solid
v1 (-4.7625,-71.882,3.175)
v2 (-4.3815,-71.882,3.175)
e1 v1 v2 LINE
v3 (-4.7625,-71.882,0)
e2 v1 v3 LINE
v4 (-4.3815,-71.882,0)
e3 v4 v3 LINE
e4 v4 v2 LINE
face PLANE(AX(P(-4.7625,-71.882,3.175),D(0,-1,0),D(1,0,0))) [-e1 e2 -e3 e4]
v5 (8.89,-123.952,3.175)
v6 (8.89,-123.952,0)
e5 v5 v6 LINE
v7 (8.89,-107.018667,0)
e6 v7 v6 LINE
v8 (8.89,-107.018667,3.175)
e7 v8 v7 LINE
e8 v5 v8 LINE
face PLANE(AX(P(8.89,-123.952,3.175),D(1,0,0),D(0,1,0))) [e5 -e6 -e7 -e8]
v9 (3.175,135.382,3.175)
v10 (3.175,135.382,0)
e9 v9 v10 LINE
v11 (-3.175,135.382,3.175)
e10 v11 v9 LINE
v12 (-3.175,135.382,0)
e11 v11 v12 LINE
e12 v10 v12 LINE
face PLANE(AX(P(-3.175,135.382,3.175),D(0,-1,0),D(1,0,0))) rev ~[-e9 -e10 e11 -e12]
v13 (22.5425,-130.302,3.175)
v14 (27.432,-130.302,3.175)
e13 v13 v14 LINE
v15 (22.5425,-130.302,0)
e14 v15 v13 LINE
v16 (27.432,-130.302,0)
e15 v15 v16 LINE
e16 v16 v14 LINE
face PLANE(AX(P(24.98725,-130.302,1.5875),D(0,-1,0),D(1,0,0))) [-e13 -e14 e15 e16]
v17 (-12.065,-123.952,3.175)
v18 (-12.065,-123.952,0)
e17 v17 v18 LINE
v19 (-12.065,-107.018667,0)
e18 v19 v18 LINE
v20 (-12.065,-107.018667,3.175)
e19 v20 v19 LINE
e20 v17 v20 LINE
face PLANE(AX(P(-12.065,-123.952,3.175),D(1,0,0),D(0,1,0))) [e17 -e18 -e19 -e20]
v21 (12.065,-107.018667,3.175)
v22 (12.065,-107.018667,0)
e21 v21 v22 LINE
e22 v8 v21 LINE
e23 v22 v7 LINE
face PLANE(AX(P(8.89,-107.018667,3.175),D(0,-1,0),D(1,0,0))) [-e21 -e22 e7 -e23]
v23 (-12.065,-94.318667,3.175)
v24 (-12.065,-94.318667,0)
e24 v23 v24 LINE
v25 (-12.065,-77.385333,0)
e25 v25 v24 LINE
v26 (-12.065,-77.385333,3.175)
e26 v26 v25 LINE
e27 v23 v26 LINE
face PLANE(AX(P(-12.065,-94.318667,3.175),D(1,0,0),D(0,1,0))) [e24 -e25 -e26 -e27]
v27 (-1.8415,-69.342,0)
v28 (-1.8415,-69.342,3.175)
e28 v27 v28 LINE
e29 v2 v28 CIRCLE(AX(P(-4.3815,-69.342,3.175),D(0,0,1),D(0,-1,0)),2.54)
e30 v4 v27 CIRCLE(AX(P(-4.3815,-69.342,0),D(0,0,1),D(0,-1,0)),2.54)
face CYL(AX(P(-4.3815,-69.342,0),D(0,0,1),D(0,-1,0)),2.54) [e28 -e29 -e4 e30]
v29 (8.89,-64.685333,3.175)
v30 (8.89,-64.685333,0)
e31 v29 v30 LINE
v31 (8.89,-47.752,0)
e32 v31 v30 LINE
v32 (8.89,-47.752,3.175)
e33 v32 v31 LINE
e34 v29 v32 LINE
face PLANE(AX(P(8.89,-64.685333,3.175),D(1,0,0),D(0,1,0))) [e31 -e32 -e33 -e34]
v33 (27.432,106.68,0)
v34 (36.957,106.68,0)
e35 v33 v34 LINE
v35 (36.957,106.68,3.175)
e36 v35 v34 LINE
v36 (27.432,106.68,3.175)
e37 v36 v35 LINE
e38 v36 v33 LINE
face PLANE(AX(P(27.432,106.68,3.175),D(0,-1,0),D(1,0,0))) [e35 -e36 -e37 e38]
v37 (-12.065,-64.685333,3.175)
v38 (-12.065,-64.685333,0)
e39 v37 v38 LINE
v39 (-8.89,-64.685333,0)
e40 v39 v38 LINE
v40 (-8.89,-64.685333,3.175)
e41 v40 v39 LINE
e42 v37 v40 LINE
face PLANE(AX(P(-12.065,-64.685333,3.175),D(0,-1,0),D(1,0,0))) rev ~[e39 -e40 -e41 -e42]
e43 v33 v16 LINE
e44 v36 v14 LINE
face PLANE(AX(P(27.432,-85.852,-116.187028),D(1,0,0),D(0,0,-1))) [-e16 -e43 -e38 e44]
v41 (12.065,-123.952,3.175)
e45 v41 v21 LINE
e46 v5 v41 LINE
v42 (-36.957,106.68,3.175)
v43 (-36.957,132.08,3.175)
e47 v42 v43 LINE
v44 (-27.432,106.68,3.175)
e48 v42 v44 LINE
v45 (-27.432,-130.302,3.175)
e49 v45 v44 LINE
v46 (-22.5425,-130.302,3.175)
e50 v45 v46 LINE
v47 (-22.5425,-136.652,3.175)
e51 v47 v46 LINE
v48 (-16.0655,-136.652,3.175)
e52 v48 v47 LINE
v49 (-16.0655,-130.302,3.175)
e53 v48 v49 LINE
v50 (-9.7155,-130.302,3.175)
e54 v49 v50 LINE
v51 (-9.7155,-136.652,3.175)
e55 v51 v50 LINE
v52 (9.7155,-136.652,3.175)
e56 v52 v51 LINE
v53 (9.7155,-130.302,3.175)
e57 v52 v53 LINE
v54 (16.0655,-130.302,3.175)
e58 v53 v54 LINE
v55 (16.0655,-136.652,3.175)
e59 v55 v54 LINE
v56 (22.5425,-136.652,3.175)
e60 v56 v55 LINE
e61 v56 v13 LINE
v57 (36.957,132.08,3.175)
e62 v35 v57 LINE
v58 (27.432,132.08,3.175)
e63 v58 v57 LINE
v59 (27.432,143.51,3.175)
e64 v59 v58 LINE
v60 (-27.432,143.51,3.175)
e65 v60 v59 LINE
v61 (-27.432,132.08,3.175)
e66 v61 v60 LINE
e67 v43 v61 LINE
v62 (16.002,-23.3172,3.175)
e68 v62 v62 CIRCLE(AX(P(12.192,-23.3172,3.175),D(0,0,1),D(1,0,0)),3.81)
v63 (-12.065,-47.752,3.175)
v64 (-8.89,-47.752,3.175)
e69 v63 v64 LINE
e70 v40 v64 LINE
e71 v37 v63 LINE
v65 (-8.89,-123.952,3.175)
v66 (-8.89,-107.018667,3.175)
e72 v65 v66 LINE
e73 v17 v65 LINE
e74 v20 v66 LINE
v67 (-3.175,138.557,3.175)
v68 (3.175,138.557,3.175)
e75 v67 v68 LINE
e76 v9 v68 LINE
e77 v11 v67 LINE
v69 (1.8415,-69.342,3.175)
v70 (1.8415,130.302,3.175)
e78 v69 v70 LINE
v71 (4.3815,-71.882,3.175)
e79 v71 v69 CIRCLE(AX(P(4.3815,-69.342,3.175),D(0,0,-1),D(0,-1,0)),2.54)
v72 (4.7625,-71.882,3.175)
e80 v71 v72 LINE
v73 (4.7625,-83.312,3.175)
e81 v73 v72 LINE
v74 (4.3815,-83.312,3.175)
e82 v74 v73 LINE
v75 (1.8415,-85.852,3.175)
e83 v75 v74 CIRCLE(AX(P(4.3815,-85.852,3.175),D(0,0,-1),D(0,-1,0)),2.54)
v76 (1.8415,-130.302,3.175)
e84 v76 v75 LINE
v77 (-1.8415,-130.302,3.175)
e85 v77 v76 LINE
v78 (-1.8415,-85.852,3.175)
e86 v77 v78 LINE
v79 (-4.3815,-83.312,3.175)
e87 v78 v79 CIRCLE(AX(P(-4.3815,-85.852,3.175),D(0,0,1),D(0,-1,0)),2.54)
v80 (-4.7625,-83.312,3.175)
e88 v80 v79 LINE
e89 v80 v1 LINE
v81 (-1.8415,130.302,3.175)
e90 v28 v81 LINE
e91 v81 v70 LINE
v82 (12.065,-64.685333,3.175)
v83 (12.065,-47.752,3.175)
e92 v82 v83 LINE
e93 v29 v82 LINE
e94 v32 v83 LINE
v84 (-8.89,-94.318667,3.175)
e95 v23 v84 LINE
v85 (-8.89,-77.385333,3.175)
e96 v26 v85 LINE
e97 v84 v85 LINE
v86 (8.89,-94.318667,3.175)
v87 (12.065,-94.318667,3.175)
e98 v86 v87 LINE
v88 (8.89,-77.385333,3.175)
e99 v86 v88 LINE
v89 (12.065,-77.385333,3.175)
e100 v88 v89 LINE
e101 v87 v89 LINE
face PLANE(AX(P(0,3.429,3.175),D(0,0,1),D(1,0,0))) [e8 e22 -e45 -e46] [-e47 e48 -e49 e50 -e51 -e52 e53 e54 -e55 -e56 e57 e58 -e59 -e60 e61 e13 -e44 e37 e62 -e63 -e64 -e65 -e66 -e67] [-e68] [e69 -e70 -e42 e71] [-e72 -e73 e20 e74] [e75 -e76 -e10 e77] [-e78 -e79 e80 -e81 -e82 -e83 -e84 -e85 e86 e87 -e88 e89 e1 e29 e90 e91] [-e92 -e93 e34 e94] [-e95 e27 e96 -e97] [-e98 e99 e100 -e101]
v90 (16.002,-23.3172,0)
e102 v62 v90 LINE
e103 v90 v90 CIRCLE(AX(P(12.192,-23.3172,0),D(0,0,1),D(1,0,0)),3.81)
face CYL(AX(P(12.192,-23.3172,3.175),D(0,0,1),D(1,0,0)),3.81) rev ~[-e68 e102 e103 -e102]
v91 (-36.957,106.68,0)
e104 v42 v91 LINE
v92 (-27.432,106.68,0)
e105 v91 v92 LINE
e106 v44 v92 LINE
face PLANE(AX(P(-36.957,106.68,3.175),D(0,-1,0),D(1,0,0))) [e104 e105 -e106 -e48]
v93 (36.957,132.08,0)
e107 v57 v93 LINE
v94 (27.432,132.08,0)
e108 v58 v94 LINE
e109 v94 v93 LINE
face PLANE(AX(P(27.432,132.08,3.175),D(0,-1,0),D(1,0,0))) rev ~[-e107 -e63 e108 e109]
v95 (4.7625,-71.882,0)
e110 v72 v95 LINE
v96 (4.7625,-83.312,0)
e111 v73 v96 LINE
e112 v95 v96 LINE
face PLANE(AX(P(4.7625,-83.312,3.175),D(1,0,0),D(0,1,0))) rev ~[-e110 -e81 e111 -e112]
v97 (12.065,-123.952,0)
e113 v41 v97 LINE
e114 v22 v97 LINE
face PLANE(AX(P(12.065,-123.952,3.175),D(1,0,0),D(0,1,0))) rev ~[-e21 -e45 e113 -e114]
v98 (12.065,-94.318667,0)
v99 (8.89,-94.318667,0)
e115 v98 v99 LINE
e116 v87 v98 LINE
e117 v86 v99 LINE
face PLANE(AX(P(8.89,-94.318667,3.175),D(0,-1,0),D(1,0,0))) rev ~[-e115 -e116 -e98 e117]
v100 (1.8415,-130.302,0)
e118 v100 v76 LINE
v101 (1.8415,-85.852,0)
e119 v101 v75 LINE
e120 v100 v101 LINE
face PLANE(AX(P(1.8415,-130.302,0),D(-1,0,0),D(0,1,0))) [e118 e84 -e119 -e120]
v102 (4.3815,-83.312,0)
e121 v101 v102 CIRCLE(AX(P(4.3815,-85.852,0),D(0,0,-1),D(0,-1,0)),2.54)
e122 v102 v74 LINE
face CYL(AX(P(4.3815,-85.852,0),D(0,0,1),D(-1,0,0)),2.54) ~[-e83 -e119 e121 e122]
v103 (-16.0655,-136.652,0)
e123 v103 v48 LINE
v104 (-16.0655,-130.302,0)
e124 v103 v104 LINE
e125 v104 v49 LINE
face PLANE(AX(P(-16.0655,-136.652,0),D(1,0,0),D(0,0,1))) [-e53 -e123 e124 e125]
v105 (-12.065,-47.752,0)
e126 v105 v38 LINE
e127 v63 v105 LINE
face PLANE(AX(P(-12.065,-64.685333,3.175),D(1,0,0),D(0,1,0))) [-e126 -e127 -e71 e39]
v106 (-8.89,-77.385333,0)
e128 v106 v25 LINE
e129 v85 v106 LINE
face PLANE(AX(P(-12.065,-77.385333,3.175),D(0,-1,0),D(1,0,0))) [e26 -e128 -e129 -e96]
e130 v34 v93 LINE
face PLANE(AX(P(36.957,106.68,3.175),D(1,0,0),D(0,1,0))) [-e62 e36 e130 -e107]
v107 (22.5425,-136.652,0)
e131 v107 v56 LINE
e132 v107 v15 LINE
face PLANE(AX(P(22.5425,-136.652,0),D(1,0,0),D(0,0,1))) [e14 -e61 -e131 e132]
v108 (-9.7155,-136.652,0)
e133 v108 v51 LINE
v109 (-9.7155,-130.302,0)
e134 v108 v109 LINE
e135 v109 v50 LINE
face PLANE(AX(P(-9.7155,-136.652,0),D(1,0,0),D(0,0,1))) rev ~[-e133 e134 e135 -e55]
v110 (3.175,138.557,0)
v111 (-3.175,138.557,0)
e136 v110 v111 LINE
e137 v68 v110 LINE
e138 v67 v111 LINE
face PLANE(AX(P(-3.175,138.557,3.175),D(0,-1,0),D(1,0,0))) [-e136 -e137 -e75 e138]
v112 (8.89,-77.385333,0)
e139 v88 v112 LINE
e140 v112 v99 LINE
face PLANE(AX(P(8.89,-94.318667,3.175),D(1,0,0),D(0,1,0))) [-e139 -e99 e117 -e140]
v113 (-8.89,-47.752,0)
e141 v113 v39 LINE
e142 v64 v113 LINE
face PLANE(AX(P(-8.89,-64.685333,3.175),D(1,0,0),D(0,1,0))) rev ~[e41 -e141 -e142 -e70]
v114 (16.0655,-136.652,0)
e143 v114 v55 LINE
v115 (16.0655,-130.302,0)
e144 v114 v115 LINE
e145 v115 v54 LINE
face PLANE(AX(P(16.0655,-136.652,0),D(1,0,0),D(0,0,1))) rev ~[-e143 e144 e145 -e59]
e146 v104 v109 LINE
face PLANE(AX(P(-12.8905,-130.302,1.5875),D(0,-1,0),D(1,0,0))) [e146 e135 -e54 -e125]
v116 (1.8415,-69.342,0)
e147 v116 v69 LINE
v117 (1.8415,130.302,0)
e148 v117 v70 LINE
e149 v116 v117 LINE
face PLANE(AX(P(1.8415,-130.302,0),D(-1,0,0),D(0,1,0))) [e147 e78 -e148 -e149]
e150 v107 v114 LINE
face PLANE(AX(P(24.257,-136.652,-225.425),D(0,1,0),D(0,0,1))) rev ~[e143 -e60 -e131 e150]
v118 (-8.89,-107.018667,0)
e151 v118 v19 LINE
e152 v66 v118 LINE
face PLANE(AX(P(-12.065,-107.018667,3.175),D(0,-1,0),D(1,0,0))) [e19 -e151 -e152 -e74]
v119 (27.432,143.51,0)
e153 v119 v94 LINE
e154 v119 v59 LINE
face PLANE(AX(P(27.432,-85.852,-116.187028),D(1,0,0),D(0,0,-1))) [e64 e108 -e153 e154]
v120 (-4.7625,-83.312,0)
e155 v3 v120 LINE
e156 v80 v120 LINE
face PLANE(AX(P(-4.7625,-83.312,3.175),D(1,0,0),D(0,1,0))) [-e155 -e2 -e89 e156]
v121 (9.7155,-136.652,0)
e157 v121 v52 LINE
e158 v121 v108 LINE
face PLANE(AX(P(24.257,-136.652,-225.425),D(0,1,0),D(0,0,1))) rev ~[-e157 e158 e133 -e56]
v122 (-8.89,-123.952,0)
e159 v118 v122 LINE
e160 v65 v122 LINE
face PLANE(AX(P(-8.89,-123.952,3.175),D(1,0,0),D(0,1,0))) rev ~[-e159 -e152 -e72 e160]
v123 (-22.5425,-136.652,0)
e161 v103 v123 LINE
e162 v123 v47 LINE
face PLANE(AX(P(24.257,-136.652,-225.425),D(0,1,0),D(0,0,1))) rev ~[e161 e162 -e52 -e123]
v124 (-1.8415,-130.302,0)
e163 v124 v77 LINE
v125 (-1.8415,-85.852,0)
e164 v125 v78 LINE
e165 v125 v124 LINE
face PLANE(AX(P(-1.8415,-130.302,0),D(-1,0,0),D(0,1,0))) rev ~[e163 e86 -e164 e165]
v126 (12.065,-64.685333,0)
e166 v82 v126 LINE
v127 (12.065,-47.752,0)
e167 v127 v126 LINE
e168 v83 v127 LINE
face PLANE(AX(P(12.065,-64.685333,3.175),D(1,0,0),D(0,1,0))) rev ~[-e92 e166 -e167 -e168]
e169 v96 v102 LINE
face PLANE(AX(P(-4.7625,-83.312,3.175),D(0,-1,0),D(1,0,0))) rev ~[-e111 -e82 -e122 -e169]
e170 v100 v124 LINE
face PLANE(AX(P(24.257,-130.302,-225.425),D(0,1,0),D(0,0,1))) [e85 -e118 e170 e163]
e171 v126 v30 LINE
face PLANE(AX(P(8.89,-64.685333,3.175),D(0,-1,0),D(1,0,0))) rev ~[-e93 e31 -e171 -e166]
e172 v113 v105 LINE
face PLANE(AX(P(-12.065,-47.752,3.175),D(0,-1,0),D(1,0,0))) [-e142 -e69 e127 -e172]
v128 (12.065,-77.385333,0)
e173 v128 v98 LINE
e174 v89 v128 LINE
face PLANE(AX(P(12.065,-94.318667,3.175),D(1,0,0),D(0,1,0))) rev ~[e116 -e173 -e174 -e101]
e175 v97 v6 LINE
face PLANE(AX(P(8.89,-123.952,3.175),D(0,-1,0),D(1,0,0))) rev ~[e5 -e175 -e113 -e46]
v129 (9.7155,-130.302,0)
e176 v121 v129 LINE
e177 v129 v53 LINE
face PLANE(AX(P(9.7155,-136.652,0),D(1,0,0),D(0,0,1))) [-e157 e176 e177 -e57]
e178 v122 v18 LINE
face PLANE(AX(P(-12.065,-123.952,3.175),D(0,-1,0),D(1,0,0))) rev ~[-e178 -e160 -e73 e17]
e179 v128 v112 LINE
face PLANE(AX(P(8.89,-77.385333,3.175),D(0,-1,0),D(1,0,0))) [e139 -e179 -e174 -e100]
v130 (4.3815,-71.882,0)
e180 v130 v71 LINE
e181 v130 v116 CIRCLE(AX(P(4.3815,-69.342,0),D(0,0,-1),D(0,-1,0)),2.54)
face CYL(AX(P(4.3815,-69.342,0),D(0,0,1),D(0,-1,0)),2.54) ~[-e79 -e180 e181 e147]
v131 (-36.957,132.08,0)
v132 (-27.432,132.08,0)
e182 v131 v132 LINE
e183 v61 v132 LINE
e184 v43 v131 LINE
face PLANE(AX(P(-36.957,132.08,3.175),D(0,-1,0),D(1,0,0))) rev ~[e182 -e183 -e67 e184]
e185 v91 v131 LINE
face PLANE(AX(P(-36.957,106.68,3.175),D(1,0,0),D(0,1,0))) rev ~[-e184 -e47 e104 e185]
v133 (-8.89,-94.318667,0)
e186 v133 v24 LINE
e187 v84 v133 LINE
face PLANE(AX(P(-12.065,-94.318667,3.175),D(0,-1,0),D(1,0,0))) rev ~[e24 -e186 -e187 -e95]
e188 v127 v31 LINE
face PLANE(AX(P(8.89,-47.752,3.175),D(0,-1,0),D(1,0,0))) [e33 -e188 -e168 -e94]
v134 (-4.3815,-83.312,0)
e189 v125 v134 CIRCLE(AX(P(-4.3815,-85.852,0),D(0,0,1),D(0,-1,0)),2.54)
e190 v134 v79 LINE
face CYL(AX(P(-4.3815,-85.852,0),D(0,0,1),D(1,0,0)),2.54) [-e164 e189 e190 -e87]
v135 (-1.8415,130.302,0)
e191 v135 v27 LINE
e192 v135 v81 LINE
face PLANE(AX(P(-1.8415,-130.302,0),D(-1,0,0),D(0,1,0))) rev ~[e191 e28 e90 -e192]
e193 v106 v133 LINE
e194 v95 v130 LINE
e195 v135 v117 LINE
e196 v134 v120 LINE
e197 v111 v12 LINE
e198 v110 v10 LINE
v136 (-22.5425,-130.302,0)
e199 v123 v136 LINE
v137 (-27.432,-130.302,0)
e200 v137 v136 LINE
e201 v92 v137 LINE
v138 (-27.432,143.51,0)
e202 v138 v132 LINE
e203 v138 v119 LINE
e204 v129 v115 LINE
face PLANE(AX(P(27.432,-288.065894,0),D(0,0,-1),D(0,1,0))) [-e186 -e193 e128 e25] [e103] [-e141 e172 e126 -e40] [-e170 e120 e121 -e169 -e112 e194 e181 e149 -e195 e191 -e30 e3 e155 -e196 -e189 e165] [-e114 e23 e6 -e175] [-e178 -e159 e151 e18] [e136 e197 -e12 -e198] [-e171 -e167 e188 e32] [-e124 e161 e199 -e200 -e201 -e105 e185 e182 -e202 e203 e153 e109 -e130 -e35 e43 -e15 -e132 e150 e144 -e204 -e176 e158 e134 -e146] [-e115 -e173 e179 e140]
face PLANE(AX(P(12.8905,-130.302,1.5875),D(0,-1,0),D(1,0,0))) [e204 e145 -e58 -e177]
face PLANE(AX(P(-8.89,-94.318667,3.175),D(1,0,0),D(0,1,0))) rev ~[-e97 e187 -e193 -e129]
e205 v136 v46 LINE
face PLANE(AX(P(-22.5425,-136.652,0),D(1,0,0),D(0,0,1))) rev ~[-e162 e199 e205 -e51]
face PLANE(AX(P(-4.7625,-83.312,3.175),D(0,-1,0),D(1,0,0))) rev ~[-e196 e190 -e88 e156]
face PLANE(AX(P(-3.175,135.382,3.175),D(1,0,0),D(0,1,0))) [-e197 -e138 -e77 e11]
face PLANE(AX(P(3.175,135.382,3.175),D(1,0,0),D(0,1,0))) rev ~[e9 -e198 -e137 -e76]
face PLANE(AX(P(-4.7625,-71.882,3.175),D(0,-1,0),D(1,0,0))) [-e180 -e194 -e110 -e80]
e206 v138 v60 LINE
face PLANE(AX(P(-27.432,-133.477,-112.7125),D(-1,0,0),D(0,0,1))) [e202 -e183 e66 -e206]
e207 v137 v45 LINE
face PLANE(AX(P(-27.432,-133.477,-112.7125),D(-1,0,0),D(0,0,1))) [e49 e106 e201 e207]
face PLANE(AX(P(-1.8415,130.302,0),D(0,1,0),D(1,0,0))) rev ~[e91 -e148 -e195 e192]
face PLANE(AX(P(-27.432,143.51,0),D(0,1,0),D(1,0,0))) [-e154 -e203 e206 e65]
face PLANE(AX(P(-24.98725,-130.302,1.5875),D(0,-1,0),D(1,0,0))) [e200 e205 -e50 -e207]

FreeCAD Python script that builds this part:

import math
import FreeCAD as App
import Part
import Sketcher
Q = App.Units.Quantity


def edges_at(feature, points):
    """Names of the edges that pass closest to the given points."""
    edges = feature.Shape.Edges
    near = lambda p: min(range(len(edges)), key=lambda i: edges[i].distToShape(Part.Vertex(*p))[0])
    return sorted({f"Edge{near(p) + 1}" for p in points})


def add_polygon(sketch, points):
    """Adds a closed chain of lines whose ends are joined by coincident constraints."""
    first, n = sketch.GeometryCount, len(points)
    for a, b in zip(points, points[1:] + points[:1]):
        sketch.addGeometry(Part.LineSegment(App.Vector(*a, 0), App.Vector(*b, 0)), False)
    for i in range(n):
        sketch.addConstraint(Sketcher.Constraint("Coincident", first + i, 2, first + (i + 1) % n, 1))

doc = App.newDocument("Part")
params = doc.addObject("Spreadsheet::Sheet", "Params")
for row, (alias, value) in enumerate([
    ("sketch1_width", "2.16 in"),
    ("sketch1_height", "11.03 in"),
    ("sketch1_height2", "10.26 in"),
    ("sketch1_width2", "0.145 in"),
    ("pad1_length", "0.125 in"),
    ("sketch2_width", "4 in"),
    ("sketch2_height", "9 in"),
    ("sketch2_width2", "0.5 in"),
    ("sketch2_width3", "0.2 in"),
    ("sketch2_height2", "0.125 in"),
    ("pad2_length", "0.125 in"),
    ("sketch3_width", "0.25 in"),
    ("sketch3_height", "8.875 in"),
    ("pad3_length", "2.035 in"),
    ("sketch5_height", "0.5 in"),
    ("sketch5_width", "0.25 in"),
    ("sketch5_height2", "0.125 in"),
    ("pocket2_length", "0.25 in"),
    ("sketch6_height", "1 in"),
    ("sketch6_width", "0.375 in"),
    ("pad4_length", "0.125 in"),
    ("sketch7_width", "0.125 in"),
    ("sketch8_width", "0.25 in"),
    ("sketch8_height", "0.125 in"),
    ("sketch9_height", "0.45 in"),
    ("sketch9_width", "0.375 in"),
    ("sketch10_diameter", "0.3 in"),
    ("fillet_radius", "0.1 in"),
], start=1):
    params.set(f"A{row}", alias)
    params.set(f"B{row}", "=" + value)
    params.setAlias(f"B{row}", alias)

body = doc.addObject("PartDesign::Body", "Body")

# Sketch on XY plane
sketch1 = body.newObject("Sketcher::SketchObject", "Sketch")
sketch1.AttachmentSupport = (doc.getObject("XY_Plane"), [""])
sketch1.MapMode = "FlatFace"
add_polygon(sketch1, [(-27.432, 143.51), (-27.432, -136.652), (27.432, -136.652), (27.432, 143.51)])  # lines 0-3
add_polygon(sketch1, [(1.8415, -130.302), (-1.8415, -130.302), (-1.8415, 130.302), (1.8415, 130.302)])  # lines 4-7
sketch1.addConstraint(Sketcher.Constraint("Vertical", 0))
sketch1.addConstraint(Sketcher.Constraint("Horizontal", 1))
sketch1.addConstraint(Sketcher.Constraint("Vertical", 2))
sketch1.addConstraint(Sketcher.Constraint("Horizontal", 3))
sketch1.addConstraint(Sketcher.Constraint("Horizontal", 4))
sketch1.addConstraint(Sketcher.Constraint("Vertical", 5))
sketch1.addConstraint(Sketcher.Constraint("Horizontal", 6))
sketch1.addConstraint(Sketcher.Constraint("Vertical", 7))
sketch1.addConstraint(Sketcher.Constraint("Symmetric", 4, 2, 6, 2, -1, 1))
sketch1.addConstraint(Sketcher.Constraint("DistanceX", 1, 1, 1, 2, Q("2.16 in")))
sketch1.addConstraint(Sketcher.Constraint("DistanceY", 0, 2, 0, 1, Q("11.03 in")))
sketch1.addConstraint(Sketcher.Constraint("DistanceY", 5, 1, 5, 2, Q("10.26 in")))
sketch1.addConstraint(Sketcher.Constraint("DistanceX", 4, 2, 4, 1, Q("0.145 in")))
sketch1.addConstraint(Sketcher.Constraint("DistanceX", 0, 2, -1, 1, Q("1.08 in")))
sketch1.addConstraint(Sketcher.Constraint("DistanceY", 0, 2, -1, 1, Q("5.38 in")))
sketch1.setExpression("Constraints[17]", "Params.sketch1_width")
sketch1.setExpression("Constraints[18]", "Params.sketch1_height")
sketch1.setExpression("Constraints[19]", "Params.sketch1_height2")
sketch1.setExpression("Constraints[20]", "Params.sketch1_width2")
pad1 = body.newObject("PartDesign::Pad", "Pad")
pad1.Profile = sketch1
pad1.setExpression("Length", "Params.pad1_length")

# Sketch on YZ plane
sketch2 = body.newObject("Sketcher::SketchObject", "Sketch001")
sketch2.AttachmentSupport = (doc.getObject("YZ_Plane"), [""])
sketch2.MapMode = "FlatFace"
sketch2.AttachmentOffset = App.Placement(App.Vector(0, 0, 1.08 * 25.4), App.Rotation())
add_polygon(sketch2, [(-47.752, -225.425), (-35.052, -225.425), (-35.052, 3.175), (-136.652, 3.175), (-136.652, -225.425), (-123.952, -225.425), (-123.952, -228.6), (-107.018667, -228.6), (-107.018667, -225.425), (-94.318667, -225.425), (-94.318667, -228.6), (-77.385333, -228.6), (-77.385333, -225.425), (-64.685333, -225.425), (-64.685333, -228.6), (-47.752, -228.6)])  # lines 0-15
sketch2.addGeometry(Part.LineSegment(App.Vector(-98.812, -11.4, 0), App.Vector(-103.892, -11.4, 0)), False)  # 16
sketch2.addGeometry(Part.ArcOfCircle(Part.Circle(App.Vector(-103.892, -9.9, 0), App.Vector(0, 0, 1), 1.5), math.radians(90), math.radians(270)), False)  # 17
sketch2.addGeometry(Part.LineSegment(App.Vector(-103.892, -8.4, 0), App.Vector(-98.812, -8.4, 0)), False)  # 18
sketch2.addGeometry(Part.ArcOfCircle(Part.Circle(App.Vector(-98.812, -9.9, 0), App.Vector(0, 0, 1), 1.5), math.radians(-90), math.radians(90)), False)  # 19
sketch2.addGeometry(Part.ArcOfCircle(Part.Circle(App.Vector(-98.812, -40.9, 0), App.Vector(0, 0, 1), 1.5), math.radians(-90), math.radians(90)), False)  # 20
sketch2.addGeometry(Part.LineSegment(App.Vector(-98.812, -42.4, 0), App.Vector(-103.892, -42.4, 0)), False)  # 21
sketch2.addGeometry(Part.ArcOfCircle(Part.Circle(App.Vector(-103.892, -40.9, 0), App.Vector(0, 0, 1), 1.5), math.radians(90), math.radians(270)), False)  # 22
sketch2.addGeometry(Part.LineSegment(App.Vector(-103.892, -39.4, 0), App.Vector(-98.812, -39.4, 0)), False)  # 23
sketch2.addGeometry(Part.LineSegment(App.Vector(-83.312, -36.4, 0), App.Vector(-88.392, -36.4, 0)), False)  # 24
sketch2.addGeometry(Part.ArcOfCircle(Part.Circle(App.Vector(-88.392, -25.4, 0), App.Vector(0, 0, 1), 11), math.radians(90), math.radians(270)), False)  # 25
sketch2.addGeometry(Part.LineSegment(App.Vector(-88.392, -14.4, 0), App.Vector(-83.312, -14.4, 0)), False)  # 26
sketch2.addGeometry(Part.ArcOfCircle(Part.Circle(App.Vector(-83.312, -25.4, 0), App.Vector(0, 0, 1), 11), math.radians(-90), math.radians(90)), False)  # 27
sketch2.addGeometry(Part.LineSegment(App.Vector(-67.812, -11.4, 0), App.Vector(-72.892, -11.4, 0)), False)  # 28
sketch2.addGeometry(Part.ArcOfCircle(Part.Circle(App.Vector(-72.892, -9.9, 0), App.Vector(0, 0, 1), 1.5), math.radians(90), math.radians(270)), False)  # 29
sketch2.addGeometry(Part.LineSegment(App.Vector(-72.892, -8.4, 0), App.Vector(-67.812, -8.4, 0)), False)  # 30
sketch2.addGeometry(Part.ArcOfCircle(Part.Circle(App.Vector(-67.812, -9.9, 0), App.Vector(0, 0, 1), 1.5), math.radians(-90), math.radians(90)), False)  # 31
sketch2.addGeometry(Part.LineSegment(App.Vector(-67.812, -42.4, 0), App.Vector(-72.892, -42.4, 0)), False)  # 32
sketch2.addGeometry(Part.ArcOfCircle(Part.Circle(App.Vector(-72.892, -40.9, 0), App.Vector(0, 0, 1), 1.5), math.radians(90), math.radians(270)), False)  # 33
sketch2.addGeometry(Part.LineSegment(App.Vector(-72.892, -39.4, 0), App.Vector(-67.812, -39.4, 0)), False)  # 34
sketch2.addGeometry(Part.ArcOfCircle(Part.Circle(App.Vector(-67.812, -40.9, 0), App.Vector(0, 0, 1), 1.5), math.radians(-90), math.radians(90)), False)  # 35
sketch2.addConstraint(Sketcher.Constraint("Tangent", 16, 2, 17, 2))
sketch2.addConstraint(Sketcher.Constraint("Tangent", 17, 1, 18, 1))
sketch2.addConstraint(Sketcher.Constraint("Tangent", 18, 2, 19, 2))
sketch2.addConstraint(Sketcher.Constraint("Tangent", 19, 1, 16, 1))
sketch2.addConstraint(Sketcher.Constraint("Tangent", 20, 1, 21, 1))
sketch2.addConstraint(Sketcher.Constraint("Tangent", 21, 2, 22, 2))
sketch2.addConstraint(Sketcher.Constraint("Tangent", 22, 1, 23, 1))
sketch2.addConstraint(Sketcher.Constraint("Tangent", 23, 2, 20, 2))
sketch2.addConstraint(Sketcher.Constraint("Tangent", 24, 2, 25, 2))
sketch2.addConstraint(Sketcher.Constraint("Tangent", 25, 1, 26, 1))
sketch2.addConstraint(Sketcher.Constraint("Tangent", 26, 2, 27, 2))
sketch2.addConstraint(Sketcher.Constraint("Tangent", 27, 1, 24, 1))
sketch2.addConstraint(Sketcher.Constraint("Tangent", 28, 2, 29, 2))
sketch2.addConstraint(Sketcher.Constraint("Tangent", 29, 1, 30, 1))
sketch2.addConstraint(Sketcher.Constraint("Tangent", 30, 2, 31, 2))
sketch2.addConstraint(Sketcher.Constraint("Tangent", 31, 1, 28, 1))
sketch2.addConstraint(Sketcher.Constraint("Tangent", 32, 2, 33, 2))
sketch2.addConstraint(Sketcher.Constraint("Tangent", 33, 1, 34, 1))
sketch2.addConstraint(Sketcher.Constraint("Tangent", 34, 2, 35, 2))
sketch2.addConstraint(Sketcher.Constraint("Tangent", 35, 1, 32, 1))
sketch2.addConstraint(Sketcher.Constraint("Horizontal", 0))
sketch2.addConstraint(Sketcher.Constraint("Vertical", 1))
sketch2.addConstraint(Sketcher.Constraint("Horizontal", 2))
sketch2.addConstraint(Sketcher.Constraint("Vertical", 3))
sketch2.addConstraint(Sketcher.Constraint("Horizontal", 4))
sketch2.addConstraint(Sketcher.Constraint("Vertical", 5))
sketch2.addConstraint(Sketcher.Constraint("Horizontal", 6))
sketch2.addConstraint(Sketcher.Constraint("Vertical", 7))
sketch2.addConstraint(Sketcher.Constraint("Horizontal", 8))
sketch2.addConstraint(Sketcher.Constraint("Vertical", 9))
sketch2.addConstraint(Sketcher.Constraint("Horizontal", 10))
sketch2.addConstraint(Sketcher.Constraint("Vertical", 11))
sketch2.addConstraint(Sketcher.Constraint("Horizontal", 12))
sketch2.addConstraint(Sketcher.Constraint("Vertical", 13))
sketch2.addConstraint(Sketcher.Constraint("Horizontal", 14))
sketch2.addConstraint(Sketcher.Constraint("Vertical", 15))
sketch2.addConstraint(Sketcher.Constraint("Horizontal", 16))
sketch2.addConstraint(Sketcher.Constraint("Horizontal", 18))
sketch2.addConstraint(Sketcher.Constraint("Horizontal", 21))
sketch2.addConstraint(Sketcher.Constraint("Horizontal", 23))
sketch2.addConstraint(Sketcher.Constraint("Horizontal", 24))
sketch2.addConstraint(Sketcher.Constraint("Horizontal", 26))
sketch2.addConstraint(Sketcher.Constraint("Horizontal", 28))
sketch2.addConstraint(Sketcher.Constraint("Horizontal", 30))
sketch2.addConstraint(Sketcher.Constraint("Horizontal", 32))
sketch2.addConstraint(Sketcher.Constraint("Horizontal", 34))
sketch2.addConstraint(Sketcher.Constraint("Equal", 19, 20))
sketch2.addConstraint(Sketcher.Constraint("Equal", 22, 29))
sketch2.addConstraint(Sketcher.Constraint("Equal", 31, 33))
sketch2.addConstraint(Sketcher.Constraint("Horizontal", 19, 3, 29, 3))
sketch2.addConstraint(Sketcher.Constraint("Horizontal", 22, 3, 33, 3))
sketch2.addConstraint(Sketcher.Constraint("Horizontal", 0, 2, 3, 2))
sketch2.addConstraint(Sketcher.Constraint("Horizontal", 4, 2, 7, 2))
sketch2.addConstraint(Sketcher.Constraint("Horizontal", 6, 2, 9, 2))
sketch2.addConstraint(Sketcher.Constraint("Horizontal", 8, 2, 11, 2))
sketch2.addConstraint(Sketcher.Constraint("Horizontal", 10, 2, 13, 2))
sketch2.addConstraint(Sketcher.Constraint("Vertical", 19, 3, 20, 3))
sketch2.addConstraint(Sketcher.Constraint("Vertical", 17, 3, 22, 3))
sketch2.addConstraint(Sketcher.Constraint("Vertical", 29, 3, 33, 3))
sketch2.addConstraint(Sketcher.Constraint("Vertical", 31, 3, 35, 3))
sketch2.addConstraint(Sketcher.Constraint("Equal", 0, 4))
sketch2.addConstraint(Sketcher.Constraint("Equal", 4, 8))
sketch2.addConstraint(Sketcher.Constraint("Equal", 6, 10))
sketch2.addConstraint(Sketcher.Constraint("Equal", 8, 12))
sketch2.addConstraint(Sketcher.Constraint("Equal", 10, 14))
sketch2.addConstraint(Sketcher.Constraint("Equal", 23, 24))
sketch2.addConstraint(Sketcher.Constraint("Equal", 26, 28))
sketch2.addConstraint(Sketcher.Constraint("DistanceX", 2, 2, 2, 1, Q("4 in")))
sketch2.addConstraint(Sketcher.Constraint("DistanceY", 1, 1, 1, 2, Q("9 in")))
sketch2.addConstraint(Sketcher.Constraint("DistanceX", 0, 1, 0, 2, Q("0.5 in")))
sketch2.addConstraint(Sketcher.Constraint("DistanceX", 16, 2, 16, 1, Q("0.2 in")))
sketch2.addConstraint(Sketcher.Constraint("DistanceY", 25, 3, -1, 1, Q("1 in")))
sketch2.addConstraint(Sketcher.Constraint("DistanceY", 5, 2, -1, 1, Q("9 in")))
sketch2.addConstraint(Sketcher.Constraint("DistanceX", 27, 3, 0, 2, Q("1.9 in")))
sketch2.addConstraint(Sketcher.Constraint("DistanceY", 5, 2, 5, 1, Q("0.125 in")))
sketch2.addConstraint(Sketcher.Constraint("DistanceX", 25, 3, -1, 1, Q("3.48 in")))
sketch2.addConstraint(Sketcher.Constraint("Radius", 17, 1.5))
sketch2.addConstraint(Sketcher.Constraint("Radius", 25, 11.0))
sketch2.addConstraint(Sketcher.Constraint("DistanceX", 17, 3, -1, 1, 103.892))
sketch2.addConstraint(Sketcher.Constraint("DistanceY", 17, 3, -1, 1, 9.9))
sketch2.addConstraint(Sketcher.Constraint("DistanceY", 20, 3, -1, 1, 40.9))
sketch2.addConstraint(Sketcher.Constraint("DistanceX", 29, 3, -1, 1, 72.892))
sketch2.setExpression("Constraints[83]", "Params.sketch2_width")
sketch2.setExpression("Constraints[84]", "Params.sketch2_height")
sketch2.setExpression("Constraints[85]", "Params.sketch2_width2")
sketch2.setExpression("Constraints[86]", "Params.sketch2_width3")
sketch2.setExpression("Constraints[90]", "Params.sketch2_height2")
pad2 = body.newObject("PartDesign::Pad", "Pad001")
pad2.Profile = sketch2
pad2.setExpression("Length", "Params.pad2_length")
pad2.Reversed = True

# Sketch on YZ plane
sketch3 = body.newObject("Sketcher::SketchObject", "Sketch002")
sketch3.AttachmentSupport = (doc.getObject("YZ_Plane"), [""])
sketch3.MapMode = "FlatFace"
sketch3.AttachmentOffset = App.Placement(App.Vector(0, 0, 0.955 * 25.4), App.Rotation())
add_polygon(sketch3, [(-130.302, -225.425), (-136.652, -225.425), (-136.652, 0), (-130.302, 0)])  # lines 0-3
sketch3.addConstraint(Sketcher.Constraint("Horizontal", 0))
sketch3.addConstraint(Sketcher.Constraint("Vertical", 1))
sketch3.addConstraint(Sketcher.Constraint("Horizontal", 2))
sketch3.addConstraint(Sketcher.Constraint("Vertical", 3))
sketch3.addConstraint(Sketcher.Constraint("PointOnObject", 1, 2, -1))
sketch3.addConstraint(Sketcher.Constraint("DistanceX", 0, 2, 0, 1, Q("0.25 in")))
sketch3.addConstraint(Sketcher.Constraint("DistanceY", 1, 1, 1, 2, Q("8.875 in")))
sketch3.addConstraint(Sketcher.Constraint("DistanceX", 0, 2, -1, 1, Q("5.38 in")))
sketch3.setExpression("Constraints[9]", "Params.sketch3_width")
sketch3.setExpression("Constraints[10]", "Params.sketch3_height")
pad3 = body.newObject("PartDesign::Pad", "Pad002")
pad3.Profile = sketch3
pad3.setExpression("Length", "Params.pad3_length")
pad3.Reversed = True

# Sketch on YZ plane
sketch4 = body.newObject("Sketcher::SketchObject", "Sketch003")
sketch4.AttachmentSupport = (doc.getObject("YZ_Plane"), [""])
sketch4.MapMode = "FlatFace"
sketch4.AttachmentOffset = App.Placement(App.Vector(0, 0, 1.08 * 25.4), App.Rotation())
add_polygon(sketch4, [(-8.630244, 0), (-288.065894, 0), (-288.065894, -327.022739), (-8.630244, -327.022739)])  # lines 0-3
sketch4.addConstraint(Sketcher.Constraint("Horizontal", 0))
sketch4.addConstraint(Sketcher.Constraint("Vertical", 1))
sketch4.addConstraint(Sketcher.Constraint("Horizontal", 2))
sketch4.addConstraint(Sketcher.Constraint("Vertical", 3))
sketch4.addConstraint(Sketcher.Constraint("PointOnObject", 0, 2, -1))
sketch4.addConstraint(Sketcher.Constraint("DistanceX", 0, 2, 0, 1, 279.43565))
sketch4.addConstraint(Sketcher.Constraint("DistanceY", 1, 2, 1, 1, 327.022739))
sketch4.addConstraint(Sketcher.Constraint("DistanceX", 0, 2, -1, 1, 288.065894))
pocket1 = body.newObject("PartDesign::Pocket", "Pocket")
pocket1.Profile = sketch4
pocket1.Type = "ThroughAll"

# Sketch on XZ plane
sketch5 = body.newObject("Sketcher::SketchObject", "Sketch004")
sketch5.AttachmentSupport = (doc.getObject("XZ_Plane"), [""])
sketch5.MapMode = "FlatFace"
sketch5.AttachmentOffset = App.Placement(App.Vector(0, 0, 5.38 * 25.4), App.Rotation())
add_polygon(sketch5, [(-16.0655, 3.175), (-16.0655, 0), (-9.7155, 0), (-9.7155, 3.175)])  # lines 0-3
add_polygon(sketch5, [(22.5425, 3.175), (22.5425, 0), (27.432, 0), (27.432, 3.175)])  # lines 4-7
add_polygon(sketch5, [(-27.432, 3.175), (-27.432, 0), (-22.5425, 0), (-22.5425, 3.175)])  # lines 8-11
add_polygon(sketch5, [(9.7155, 3.175), (9.7155, 0), (16.0655, 0), (16.0655, 3.175)])  # lines 12-15
add_polygon(sketch5, [(22.5425, -131.7625), (22.5425, -144.4625), (27.432, -144.4625), (27.432, -131.7625)])  # lines 16-19
add_polygon(sketch5, [(22.5425, -50.8), (22.5425, -63.5), (27.432, -63.5), (27.432, -50.8)])  # lines 20-23
add_polygon(sketch5, [(22.5425, -158.75), (22.5425, -171.45), (27.432, -171.45), (27.432, -158.75)])  # lines 24-27
sketch5.addConstraint(Sketcher.Constraint("Vertical", 0))
sketch5.addConstraint(Sketcher.Constraint("Horizontal", 1))
sketch5.addConstraint(Sketcher.Constraint("Vertical", 2))
sketch5.addConstraint(Sketcher.Constraint("Horizontal", 3))
sketch5.addConstraint(Sketcher.Constraint("Vertical", 4))
sketch5.addConstraint(Sketcher.Constraint("Horizontal", 5))
sketch5.addConstraint(Sketcher.Constraint("Vertical", 6))
sketch5.addConstraint(Sketcher.Constraint("Horizontal", 7))
sketch5.addConstraint(Sketcher.Constraint("Vertical", 8))
sketch5.addConstraint(Sketcher.Constraint("Horizontal", 9))
sketch5.addConstraint(Sketcher.Constraint("Vertical", 10))
sketch5.addConstraint(Sketcher.Constraint("Horizontal", 11))
sketch5.addConstraint(Sketcher.Constraint("Vertical", 12))
sketch5.addConstraint(Sketcher.Constraint("Horizontal", 13))
sketch5.addConstraint(Sketcher.Constraint("Vertical", 14))
sketch5.addConstraint(Sketcher.Constraint("Horizontal", 15))
sketch5.addConstraint(Sketcher.Constraint("Vertical", 16))
sketch5.addConstraint(Sketcher.Constraint("Horizontal", 17))
sketch5.addConstraint(Sketcher.Constraint("Vertical", 18))
sketch5.addConstraint(Sketcher.Constraint("Horizontal", 19))
sketch5.addConstraint(Sketcher.Constraint("Vertical", 20))
sketch5.addConstraint(Sketcher.Constraint("Horizontal", 21))
sketch5.addConstraint(Sketcher.Constraint("Vertical", 22))
sketch5.addConstraint(Sketcher.Constraint("Horizontal", 23))
sketch5.addConstraint(Sketcher.Constraint("Vertical", 24))
sketch5.addConstraint(Sketcher.Constraint("Horizontal", 25))
sketch5.addConstraint(Sketcher.Constraint("Vertical", 26))
sketch5.addConstraint(Sketcher.Constraint("Horizontal", 27))
sketch5.addConstraint(Sketcher.Constraint("Symmetric", 5, 2, 8, 2, -1, 1))
sketch5.addConstraint(Sketcher.Constraint("Symmetric", 1, 2, 12, 2, -1, 1))
sketch5.addConstraint(Sketcher.Constraint("Symmetric", 4, 2, 9, 2, -2))
sketch5.addConstraint(Sketcher.Constraint("Symmetric", 0, 2, 13, 2, -2))
sketch5.addConstraint(Sketcher.Constraint("Horizontal", 3, 2, 6, 2))
sketch5.addConstraint(Sketcher.Constraint("Horizontal", 7, 2, 10, 2))
sketch5.addConstraint(Sketcher.Constraint("Horizontal", 11, 2, 14, 2))
sketch5.addConstraint(Sketcher.Constraint("Vertical", 7, 2, 16, 2))
sketch5.addConstraint(Sketcher.Constraint("Vertical", 6, 2, 17, 2))
sketch5.addConstraint(Sketcher.Constraint("Vertical", 19, 2, 20, 2))
sketch5.addConstraint(Sketcher.Constraint("Vertical", 18, 2, 21, 2))
sketch5.addConstraint(Sketcher.Constraint("Vertical", 23, 2, 24, 2))
sketch5.addConstraint(Sketcher.Constraint("Vertical", 22, 2, 25, 2))
sketch5.addConstraint(Sketcher.Constraint("Equal", 18, 20))
sketch5.addConstraint(Sketcher.Constraint("Equal", 22, 24))
sketch5.addConstraint(Sketcher.Constraint("DistanceY", 16, 2, 16, 1, Q("0.5 in")))
sketch5.addConstraint(Sketcher.Constraint("DistanceY", 22, 2, -1, 1, Q("2 in")))
sketch5.addConstraint(Sketcher.Constraint("DistanceX", 1, 1, 1, 2, Q("0.25 in")))
sketch5.addConstraint(Sketcher.Constraint("DistanceY", 0, 2, 0, 1, Q("0.125 in")))
sketch5.addConstraint(Sketcher.Constraint("DistanceX", -1, 1, 5, 2, Q("1.08 in")))
sketch5.addConstraint(Sketcher.Constraint("DistanceY", 24, 2, -1, 1, Q("6.75 in")))
sketch5.addConstraint(Sketcher.Constraint("DistanceX", 1, 2, 4, 2, Q("1.27 in")))
sketch5.addConstraint(Sketcher.Constraint("DistanceX", 5, 1, 5, 2, Q("0.1925 in")))
sketch5.addConstraint(Sketcher.Constraint("DistanceY", 16, 2, -1, 1, Q("5.6875 in")))
sketch5.setExpression("Constraints[71]", "Params.sketch5_height")
sketch5.setExpression("Constraints[73]", "Params.sketch5_width")
sketch5.setExpression("Constraints[74]", "Params.sketch5_height2")
pocket2 = body.newObject("PartDesign::Pocket", "Pocket001")
pocket2.Profile = sketch5
pocket2.setExpression("Length", "Params.pocket2_length")

# Sketch on XY plane
sketch6 = body.newObject("Sketcher::SketchObject", "Sketch005")
sketch6.AttachmentSupport = (doc.getObject("XY_Plane"), [""])
sketch6.MapMode = "FlatFace"
sketch6.AttachmentOffset = App.Placement(App.Vector(0, 0, 0.125 * 25.4), App.Rotation())
add_polygon(sketch6, [(-36.957, 132.08), (-36.957, 106.68), (-27.432, 106.68), (-27.432, 132.08)])  # lines 0-3
add_polygon(sketch6, [(27.432, 132.08), (27.432, 106.68), (36.957, 106.68), (36.957, 132.08)])  # lines 4-7
sketch6.addConstraint(Sketcher.Constraint("Vertical", 0))
sketch6.addConstraint(Sketcher.Constraint("Horizontal", 1))
sketch6.addConstraint(Sketcher.Constraint("Vertical", 2))
sketch6.addConstraint(Sketcher.Constraint("Horizontal", 3))
sketch6.addConstraint(Sketcher.Constraint("Vertical", 4))
sketch6.addConstraint(Sketcher.Constraint("Horizontal", 5))
sketch6.addConstraint(Sketcher.Constraint("Vertical", 6))
sketch6.addConstraint(Sketcher.Constraint("Horizontal", 7))
sketch6.addConstraint(Sketcher.Constraint("Symmetric", 1, 2, 4, 2, -2))
sketch6.addConstraint(Sketcher.Constraint("Symmetric", 3, 2, 6, 2, -2))
sketch6.addConstraint(Sketcher.Constraint("DistanceY", 0, 2, 0, 1, Q("1 in")))
sketch6.addConstraint(Sketcher.Constraint("DistanceY", -1, 1, 0, 2, Q("4.2 in")))
sketch6.addConstraint(Sketcher.Constraint("DistanceX", 1, 1, 1, 2, Q("0.375 in")))
sketch6.addConstraint(Sketcher.Constraint("DistanceX", 1, 2, -1, 1, Q("1.08 in")))
sketch6.setExpression("Constraints[18]", "Params.sketch6_height")
sketch6.setExpression("Constraints[20]", "Params.sketch6_width")
pad4 = body.newObject("PartDesign::Pad", "Pad003")
pad4.Profile = sketch6
pad4.setExpression("Length", "Params.pad4_length")
pad4.Reversed = True

# Sketch on XY plane
sketch7 = body.newObject("Sketcher::SketchObject", "Sketch006")
sketch7.AttachmentSupport = (doc.getObject("XY_Plane"), [""])
sketch7.MapMode = "FlatFace"
sketch7.AttachmentOffset = App.Placement(App.Vector(0, 0, 0.125 * 25.4), App.Rotation())
add_polygon(sketch7, [(-12.065, -47.752), (-12.065, -64.685333), (-8.89, -64.685333), (-8.89, -47.752)])  # lines 0-3
add_polygon(sketch7, [(-12.065, -77.385333), (-12.065, -94.318667), (-8.89, -94.318667), (-8.89, -77.385333)])  # lines 4-7
add_polygon(sketch7, [(-12.065, -107.018667), (-12.065, -123.952), (-8.89, -123.952), (-8.89, -107.018667)])  # lines 8-11
add_polygon(sketch7, [(8.89, -47.752), (8.89, -64.685333), (12.065, -64.685333), (12.065, -47.752)])  # lines 12-15
add_polygon(sketch7, [(8.89, -77.385333), (8.89, -94.318667), (12.065, -94.318667), (12.065, -77.385333)])  # lines 16-19
add_polygon(sketch7, [(8.89, -107.018667), (8.89, -123.952), (12.065, -123.952), (12.065, -107.018667)])  # lines 20-23
sketch7.addConstraint(Sketcher.Constraint("Vertical", 0))
sketch7.addConstraint(Sketcher.Constraint("Horizontal", 1))
sketch7.addConstraint(Sketcher.Constraint("Vertical", 2))
sketch7.addConstraint(Sketcher.Constraint("Horizontal", 3))
sketch7.addConstraint(Sketcher.Constraint("Vertical", 4))
sketch7.addConstraint(Sketcher.Constraint("Horizontal", 5))
sketch7.addConstraint(Sketcher.Constraint("Vertical", 6))
sketch7.addConstraint(Sketcher.Constraint("Horizontal", 7))
sketch7.addConstraint(Sketcher.Constraint("Vertical", 8))
sketch7.addConstraint(Sketcher.Constraint("Horizontal", 9))
sketch7.addConstraint(Sketcher.Constraint("Vertical", 10))
sketch7.addConstraint(Sketcher.Constraint("Horizontal", 11))
sketch7.addConstraint(Sketcher.Constraint("Vertical", 12))
sketch7.addConstraint(Sketcher.Constraint("Horizontal", 13))
sketch7.addConstraint(Sketcher.Constraint("Vertical", 14))
sketch7.addConstraint(Sketcher.Constraint("Horizontal", 15))
sketch7.addConstraint(Sketcher.Constraint("Vertical", 16))
sketch7.addConstraint(Sketcher.Constraint("Horizontal", 17))
sketch7.addConstraint(Sketcher.Constraint("Vertical", 18))
sketch7.addConstraint(Sketcher.Constraint("Horizontal", 19))
sketch7.addConstraint(Sketcher.Constraint("Vertical", 20))
sketch7.addConstraint(Sketcher.Constraint("Horizontal", 21))
sketch7.addConstraint(Sketcher.Constraint("Vertical", 22))
sketch7.addConstraint(Sketcher.Constraint("Horizontal", 23))
sketch7.addConstraint(Sketcher.Constraint("Symmetric", 1, 2, 12, 2, -2))
sketch7.addConstraint(Sketcher.Constraint("Symmetric", 3, 2, 14, 2, -2))
sketch7.addConstraint(Sketcher.Constraint("Symmetric", 5, 2, 16, 2, -2))
sketch7.addConstraint(Sketcher.Constraint("Symmetric", 7, 2, 18, 2, -2))
sketch7.addConstraint(Sketcher.Constraint("Symmetric", 9, 2, 20, 2, -2))
sketch7.addConstraint(Sketcher.Constraint("Symmetric", 11, 2, 22, 2, -2))
sketch7.addConstraint(Sketcher.Constraint("Vertical", 3, 2, 4, 2))
sketch7.addConstraint(Sketcher.Constraint("Vertical", 2, 2, 5, 2))
sketch7.addConstraint(Sketcher.Constraint("Vertical", 7, 2, 8, 2))
sketch7.addConstraint(Sketcher.Constraint("Vertical", 6, 2, 9, 2))
sketch7.addConstraint(Sketcher.Constraint("Equal", 2, 4))
sketch7.addConstraint(Sketcher.Constraint("Equal", 6, 8))
sketch7.addConstraint(Sketcher.Constraint("DistanceY", 6, 2, 1, 2, Q("0.5 in")))
sketch7.addConstraint(Sketcher.Constraint("DistanceY", 10, 2, 5, 2, Q("0.5 in")))
sketch7.addConstraint(Sketcher.Constraint("DistanceX", 1, 2, 12, 2, Q("0.7 in")))
sketch7.addConstraint(Sketcher.Constraint("DistanceX", 1, 1, 1, 2, Q("0.125 in")))
sketch7.addConstraint(Sketcher.Constraint("DistanceY", 2, 2, -1, 1, Q("1.88 in")))
sketch7.addConstraint(Sketcher.Constraint("DistanceY", 8, 2, -1, 1, Q("4.88 in")))
sketch7.setExpression("Constraints[63]", "Params.sketch7_width")
pocket3 = body.newObject("PartDesign::Pocket", "Pocket002")
pocket3.Profile = sketch7
pocket3.Type = "ThroughAll"

# Sketch on XY plane
sketch8 = body.newObject("Sketcher::SketchObject", "Sketch007")
sketch8.AttachmentSupport = (doc.getObject("XY_Plane"), [""])
sketch8.MapMode = "FlatFace"
sketch8.AttachmentOffset = App.Placement(App.Vector(0, 0, 0.125 * 25.4), App.Rotation())
add_polygon(sketch8, [(-3.175, 138.557), (-3.175, 135.382), (3.175, 135.382), (3.175, 138.557)])  # lines 0-3
sketch8.addConstraint(Sketcher.Constraint("Vertical", 0))
sketch8.addConstraint(Sketcher.Constraint("Horizontal", 1))
sketch8.addConstraint(Sketcher.Constraint("Vertical", 2))
sketch8.addConstraint(Sketcher.Constraint("Horizontal", 3))
sketch8.addConstraint(Sketcher.Constraint("DistanceX", 1, 1, 1, 2, Q("0.25 in")))
sketch8.addConstraint(Sketcher.Constraint("DistanceY", 0, 2, 0, 1, Q("0.125 in")))
sketch8.addConstraint(Sketcher.Constraint("DistanceY", -1, 1, 0, 2, Q("5.33 in")))
sketch8.addConstraint(Sketcher.Constraint("DistanceX", 0, 2, -1, 1, Q("0.125 in")))
sketch8.setExpression("Constraints[8]", "Params.sketch8_width")
sketch8.setExpression("Constraints[9]", "Params.sketch8_height")
pocket4 = body.newObject("PartDesign::Pocket", "Pocket003")
pocket4.Profile = sketch8
pocket4.Type = "ThroughAll"

# Sketch on XY plane
sketch9 = body.newObject("Sketcher::SketchObject", "Sketch008")
sketch9.AttachmentSupport = (doc.getObject("XY_Plane"), [""])
sketch9.MapMode = "FlatFace"
sketch9.AttachmentOffset = App.Placement(App.Vector(0, 0, 0.125 * 25.4), App.Rotation())
add_polygon(sketch9, [(-4.7625, -71.882), (-4.7625, -83.312), (4.7625, -83.312), (4.7625, -71.882)])  # lines 0-3
sketch9.addConstraint(Sketcher.Constraint("Vertical", 0))
sketch9.addConstraint(Sketcher.Constraint("Horizontal", 1))
sketch9.addConstraint(Sketcher.Constraint("Vertical", 2))
sketch9.addConstraint(Sketcher.Constraint("Horizontal", 3))
sketch9.addConstraint(Sketcher.Constraint("DistanceY", 0, 2, 0, 1, Q("0.45 in")))
sketch9.addConstraint(Sketcher.Constraint("DistanceX", 1, 1, 1, 2, Q("0.375 in")))
sketch9.addConstraint(Sketcher.Constraint("DistanceY", 0, 2, -1, 1, Q("3.28 in")))
sketch9.addConstraint(Sketcher.Constraint("DistanceX", 0, 2, -1, 1, Q("0.1875 in")))
sketch9.setExpression("Constraints[8]", "Params.sketch9_height")
sketch9.setExpression("Constraints[9]", "Params.sketch9_width")
pocket5 = body.newObject("PartDesign::Pocket", "Pocket004")
pocket5.Profile = sketch9
pocket5.Type = "ThroughAll"

# Sketch on XY plane
sketch10 = body.newObject("Sketcher::SketchObject", "Sketch009")
sketch10.AttachmentSupport = (doc.getObject("XY_Plane"), [""])
sketch10.MapMode = "FlatFace"
sketch10.AttachmentOffset = App.Placement(App.Vector(0, 0, 0.125 * 25.4), App.Rotation())
sketch10.addGeometry(Part.Circle(App.Vector(12.192, -23.3172, 0), App.Vector(0, 0, 1), 3.81), False)
sketch10.addConstraint(Sketcher.Constraint("Diameter", 0, Q("0.3 in")))
sketch10.addConstraint(Sketcher.Constraint("DistanceX", -1, 1, 0, 3, Q("0.48 in")))
sketch10.addConstraint(Sketcher.Constraint("DistanceY", 0, 3, -1, 1, Q("0.918 in")))
sketch10.setExpression("Constraints[0]", "Params.sketch10_diameter")
pocket6 = body.newObject("PartDesign::Pocket", "Pocket005")
pocket6.Profile = sketch10
pocket6.Type = "ThroughAll"
doc.recompute()

fillet = body.newObject("PartDesign::Fillet", "Fillet")
fillet.Base = (pocket6, edges_at(pocket6, [
    (-1.841, -83.312, 1.587),
    (-1.841, -71.882, 1.587),
    (1.841, -71.882, 1.587),
    (1.841, -83.312, 1.587),
]))
fillet.setExpression("Radius", "Params.fillet_radius")

doc.recompute()
